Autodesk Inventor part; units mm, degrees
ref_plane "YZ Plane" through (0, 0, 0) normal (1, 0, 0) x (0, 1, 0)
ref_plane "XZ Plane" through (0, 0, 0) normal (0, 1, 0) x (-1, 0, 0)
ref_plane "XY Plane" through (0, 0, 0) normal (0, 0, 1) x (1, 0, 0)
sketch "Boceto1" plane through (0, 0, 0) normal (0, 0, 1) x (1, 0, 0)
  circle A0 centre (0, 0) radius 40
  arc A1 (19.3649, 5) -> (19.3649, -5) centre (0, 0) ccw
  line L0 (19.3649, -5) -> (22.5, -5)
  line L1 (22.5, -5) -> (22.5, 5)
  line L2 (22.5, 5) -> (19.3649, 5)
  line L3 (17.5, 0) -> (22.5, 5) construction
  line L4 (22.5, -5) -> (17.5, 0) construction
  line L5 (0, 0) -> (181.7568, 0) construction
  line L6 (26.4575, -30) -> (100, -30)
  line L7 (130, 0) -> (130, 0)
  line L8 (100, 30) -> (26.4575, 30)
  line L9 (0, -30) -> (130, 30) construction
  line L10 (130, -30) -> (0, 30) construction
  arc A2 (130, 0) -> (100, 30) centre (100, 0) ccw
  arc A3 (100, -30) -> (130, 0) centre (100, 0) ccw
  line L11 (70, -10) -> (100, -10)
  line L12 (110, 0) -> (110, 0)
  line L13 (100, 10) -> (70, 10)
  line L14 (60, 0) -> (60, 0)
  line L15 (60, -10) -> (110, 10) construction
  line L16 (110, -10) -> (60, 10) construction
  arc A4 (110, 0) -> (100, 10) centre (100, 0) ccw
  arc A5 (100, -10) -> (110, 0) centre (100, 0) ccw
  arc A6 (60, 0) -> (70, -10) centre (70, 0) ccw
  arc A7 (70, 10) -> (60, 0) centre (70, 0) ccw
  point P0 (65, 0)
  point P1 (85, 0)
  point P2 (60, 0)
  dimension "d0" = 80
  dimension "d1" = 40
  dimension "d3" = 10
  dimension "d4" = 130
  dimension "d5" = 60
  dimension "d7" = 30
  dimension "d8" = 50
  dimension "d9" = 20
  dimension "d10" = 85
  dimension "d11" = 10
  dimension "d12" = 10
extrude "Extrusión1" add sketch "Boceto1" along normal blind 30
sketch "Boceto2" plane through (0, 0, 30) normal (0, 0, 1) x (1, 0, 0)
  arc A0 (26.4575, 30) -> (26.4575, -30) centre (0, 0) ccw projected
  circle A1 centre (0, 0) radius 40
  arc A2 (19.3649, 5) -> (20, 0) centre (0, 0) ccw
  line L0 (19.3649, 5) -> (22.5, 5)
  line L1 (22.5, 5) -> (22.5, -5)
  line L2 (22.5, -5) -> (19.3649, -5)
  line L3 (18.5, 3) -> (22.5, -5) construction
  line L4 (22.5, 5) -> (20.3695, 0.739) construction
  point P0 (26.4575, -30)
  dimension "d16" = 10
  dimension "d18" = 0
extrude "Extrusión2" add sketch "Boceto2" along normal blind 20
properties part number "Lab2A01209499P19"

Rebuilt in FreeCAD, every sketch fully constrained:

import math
import FreeCAD as App
import Part
import Sketcher
from FreeCAD import Vector

doc = App.newDocument("Part")
params = doc.addObject("Spreadsheet::Sheet", "Params")
for row, (alias, value) in enumerate([
    ("sketch1_radius", "40 mm"),
    ("sketch1_radius2", "30 mm"),
    ("sketch1_radius3", "20 mm"),
    ("sketch1_radius4", "10 mm"),
    ("sketch1_width", "30 mm"),
    ("pad1_length", "30 mm"),
    ("sketch2_height", "10 mm"),
    ("sketch2_diameter", "80 mm"),
    ("sketch2_radius", "20 mm"),
    ("pad2_length", "20 mm"),
], start=1):
    params.set(f"A{row}", alias)
    params.set(f"B{row}", "=" + value)
    params.setAlias(f"B{row}", alias)

body = doc.addObject("PartDesign::Body", "Body")

# Sketch on XY plane
sketch1 = body.newObject("Sketcher::SketchObject", "Sketch")
sketch1.AttachmentSupport = (doc.getObject("XY_Plane"), [""])
sketch1.MapMode = "FlatFace"
sketch1.addGeometry([
    Part.ArcOfCircle(Part.Circle(Vector(0, 0, 0), Vector(0, 0, 1), 40), math.radians(48.590392), math.radians(311.409608)),  # 0
    Part.LineSegment(Vector(26.4575, -30, 0), Vector(100, -30, 0)),  # 1
    Part.ArcOfCircle(Part.Circle(Vector(100, 0, 0), Vector(0, 0, 1), 30), math.radians(-90), math.radians(90)),  # 2
    Part.LineSegment(Vector(100, 30, 0), Vector(26.4575, 30, 0)),  # 3
    Part.ArcOfCircle(Part.Circle(Vector(0, 0, 0), Vector(0, 0, 1), 19.999984), math.radians(14.477524), math.radians(345.522476)),  # 4
    Part.LineSegment(Vector(19.3649, 5, 0), Vector(22.5, 5, 0)),  # 5
    Part.LineSegment(Vector(22.5, 5, 0), Vector(22.5, -5, 0)),  # 6
    Part.LineSegment(Vector(22.5, -5, 0), Vector(19.3649, -5, 0)),  # 7
    Part.LineSegment(Vector(70, 10, 0), Vector(100, 10, 0)),  # 8
    Part.ArcOfCircle(Part.Circle(Vector(100, 0, 0), Vector(0, 0, 1), 10), math.radians(-90), math.radians(90)),  # 9
    Part.LineSegment(Vector(100, -10, 0), Vector(70, -10, 0)),  # 10
    Part.ArcOfCircle(Part.Circle(Vector(70, 0, 0), Vector(0, 0, 1), 10), math.radians(90), math.radians(270)),  # 11
], False)
sketch1.addConstraint([
    Sketcher.Constraint("Coincident", 0, 2, 1, 1),
    Sketcher.Constraint("Tangent", 1, 2, 2, 1),
    Sketcher.Constraint("Tangent", 2, 2, 3, 1),
    Sketcher.Constraint("Coincident", 3, 2, 0, 1),
    Sketcher.Constraint("Coincident", 4, 1, 5, 1),
    Sketcher.Constraint("Coincident", 5, 2, 6, 1),
    Sketcher.Constraint("Coincident", 6, 2, 7, 1),
    Sketcher.Constraint("Coincident", 7, 2, 4, 2),
    Sketcher.Constraint("Tangent", 8, 2, 9, 2),
    Sketcher.Constraint("Tangent", 9, 1, 10, 1),
    Sketcher.Constraint("Tangent", 10, 2, 11, 2),
    Sketcher.Constraint("Tangent", 11, 1, 8, 1),
    Sketcher.Constraint("Horizontal", 1),
    Sketcher.Constraint("Horizontal", 3),
    Sketcher.Constraint("Horizontal", 5),
    Sketcher.Constraint("Vertical", 6),
    Sketcher.Constraint("Horizontal", 7),
    Sketcher.Constraint("Horizontal", 8),
    Sketcher.Constraint("Horizontal", 10),
    Sketcher.Constraint("Coincident", 0, 3, -1, 1),
    Sketcher.Constraint("Coincident", 4, 3, -1, 1),
    Sketcher.Constraint("Coincident", 9, 3, 2, 3),
    Sketcher.Constraint("PointOnObject", 2, 3, -1),
    Sketcher.Constraint("Vertical", 4, 1, 7, 2),
    Sketcher.Constraint("Radius", 0, 40.0),
    Sketcher.Constraint("Radius", 2, 30.0),
    Sketcher.Constraint("Radius", 4, 20.0),
    Sketcher.Constraint("Radius", 9, 10.0),
    Sketcher.Constraint("DistanceX", 8, 1, 8, 2, 30.0),
    Sketcher.Constraint("DistanceY", 6, 2, 6, 1, 10.0),
    Sketcher.Constraint("DistanceX", -1, 1, 2, 3, 100.0),
    Sketcher.Constraint("DistanceX", -1, 1, 5, 2, 22.5),
])
sketch1.setExpression("Constraints[24]", "Params.sketch1_radius")
sketch1.setExpression("Constraints[25]", "Params.sketch1_radius2")
sketch1.setExpression("Constraints[26]", "Params.sketch1_radius3")
sketch1.setExpression("Constraints[27]", "Params.sketch1_radius4")
sketch1.setExpression("Constraints[28]", "Params.sketch1_width")
pad1 = body.newObject("PartDesign::Pad", "Pad")
pad1.Profile = sketch1
pad1.setExpression("Length", "Params.pad1_length")

# Sketch on XY plane
sketch2 = body.newObject("Sketcher::SketchObject", "Sketch001")
sketch2.AttachmentSupport = (doc.getObject("XY_Plane"), [""])
sketch2.MapMode = "FlatFace"
sketch2.AttachmentOffset = App.Placement(Vector(0, 0, 30), App.Rotation())
sketch2.addGeometry([
    Part.Circle(Vector(0, 0, 0), Vector(0, 0, 1), 39.999991),  # 0
    Part.ArcOfCircle(Part.Circle(Vector(0, 0, 0), Vector(0, 0, 1), 19.999984), math.radians(14.477524), math.radians(345.522476)),  # 1
    Part.LineSegment(Vector(19.3649, 5, 0), Vector(22.5, 5, 0)),  # 2
    Part.LineSegment(Vector(22.5, 5, 0), Vector(22.5, -5, 0)),  # 3
    Part.LineSegment(Vector(22.5, -5, 0), Vector(19.3649, -5, 0)),  # 4
], False)
sketch2.addConstraint([
    Sketcher.Constraint("Coincident", 1, 1, 2, 1),
    Sketcher.Constraint("Coincident", 2, 2, 3, 1),
    Sketcher.Constraint("Coincident", 3, 2, 4, 1),
    Sketcher.Constraint("Coincident", 4, 2, 1, 2),
    Sketcher.Constraint("Horizontal", 2),
    Sketcher.Constraint("Vertical", 3),
    Sketcher.Constraint("Horizontal", 4),
    Sketcher.Constraint("Coincident", 0, 3, -1, 1),
    Sketcher.Constraint("Coincident", 1, 3, -1, 1),
    Sketcher.Constraint("Vertical", 1, 1, 4, 2),
    Sketcher.Constraint("DistanceY", 3, 2, 3, 1, 10.0),
    Sketcher.Constraint("Diameter", 0, 80.0),
    Sketcher.Constraint("Radius", 1, 20.0),
    Sketcher.Constraint("DistanceX", -1, 1, 2, 2, 22.5),
])
sketch2.setExpression("Constraints[10]", "Params.sketch2_height")
sketch2.setExpression("Constraints[11]", "Params.sketch2_diameter")
sketch2.setExpression("Constraints[12]", "Params.sketch2_radius")
pad2 = body.newObject("PartDesign::Pad", "Pad001")
pad2.Profile = sketch2
pad2.setExpression("Length", "Params.pad2_length")

doc.recompute()
